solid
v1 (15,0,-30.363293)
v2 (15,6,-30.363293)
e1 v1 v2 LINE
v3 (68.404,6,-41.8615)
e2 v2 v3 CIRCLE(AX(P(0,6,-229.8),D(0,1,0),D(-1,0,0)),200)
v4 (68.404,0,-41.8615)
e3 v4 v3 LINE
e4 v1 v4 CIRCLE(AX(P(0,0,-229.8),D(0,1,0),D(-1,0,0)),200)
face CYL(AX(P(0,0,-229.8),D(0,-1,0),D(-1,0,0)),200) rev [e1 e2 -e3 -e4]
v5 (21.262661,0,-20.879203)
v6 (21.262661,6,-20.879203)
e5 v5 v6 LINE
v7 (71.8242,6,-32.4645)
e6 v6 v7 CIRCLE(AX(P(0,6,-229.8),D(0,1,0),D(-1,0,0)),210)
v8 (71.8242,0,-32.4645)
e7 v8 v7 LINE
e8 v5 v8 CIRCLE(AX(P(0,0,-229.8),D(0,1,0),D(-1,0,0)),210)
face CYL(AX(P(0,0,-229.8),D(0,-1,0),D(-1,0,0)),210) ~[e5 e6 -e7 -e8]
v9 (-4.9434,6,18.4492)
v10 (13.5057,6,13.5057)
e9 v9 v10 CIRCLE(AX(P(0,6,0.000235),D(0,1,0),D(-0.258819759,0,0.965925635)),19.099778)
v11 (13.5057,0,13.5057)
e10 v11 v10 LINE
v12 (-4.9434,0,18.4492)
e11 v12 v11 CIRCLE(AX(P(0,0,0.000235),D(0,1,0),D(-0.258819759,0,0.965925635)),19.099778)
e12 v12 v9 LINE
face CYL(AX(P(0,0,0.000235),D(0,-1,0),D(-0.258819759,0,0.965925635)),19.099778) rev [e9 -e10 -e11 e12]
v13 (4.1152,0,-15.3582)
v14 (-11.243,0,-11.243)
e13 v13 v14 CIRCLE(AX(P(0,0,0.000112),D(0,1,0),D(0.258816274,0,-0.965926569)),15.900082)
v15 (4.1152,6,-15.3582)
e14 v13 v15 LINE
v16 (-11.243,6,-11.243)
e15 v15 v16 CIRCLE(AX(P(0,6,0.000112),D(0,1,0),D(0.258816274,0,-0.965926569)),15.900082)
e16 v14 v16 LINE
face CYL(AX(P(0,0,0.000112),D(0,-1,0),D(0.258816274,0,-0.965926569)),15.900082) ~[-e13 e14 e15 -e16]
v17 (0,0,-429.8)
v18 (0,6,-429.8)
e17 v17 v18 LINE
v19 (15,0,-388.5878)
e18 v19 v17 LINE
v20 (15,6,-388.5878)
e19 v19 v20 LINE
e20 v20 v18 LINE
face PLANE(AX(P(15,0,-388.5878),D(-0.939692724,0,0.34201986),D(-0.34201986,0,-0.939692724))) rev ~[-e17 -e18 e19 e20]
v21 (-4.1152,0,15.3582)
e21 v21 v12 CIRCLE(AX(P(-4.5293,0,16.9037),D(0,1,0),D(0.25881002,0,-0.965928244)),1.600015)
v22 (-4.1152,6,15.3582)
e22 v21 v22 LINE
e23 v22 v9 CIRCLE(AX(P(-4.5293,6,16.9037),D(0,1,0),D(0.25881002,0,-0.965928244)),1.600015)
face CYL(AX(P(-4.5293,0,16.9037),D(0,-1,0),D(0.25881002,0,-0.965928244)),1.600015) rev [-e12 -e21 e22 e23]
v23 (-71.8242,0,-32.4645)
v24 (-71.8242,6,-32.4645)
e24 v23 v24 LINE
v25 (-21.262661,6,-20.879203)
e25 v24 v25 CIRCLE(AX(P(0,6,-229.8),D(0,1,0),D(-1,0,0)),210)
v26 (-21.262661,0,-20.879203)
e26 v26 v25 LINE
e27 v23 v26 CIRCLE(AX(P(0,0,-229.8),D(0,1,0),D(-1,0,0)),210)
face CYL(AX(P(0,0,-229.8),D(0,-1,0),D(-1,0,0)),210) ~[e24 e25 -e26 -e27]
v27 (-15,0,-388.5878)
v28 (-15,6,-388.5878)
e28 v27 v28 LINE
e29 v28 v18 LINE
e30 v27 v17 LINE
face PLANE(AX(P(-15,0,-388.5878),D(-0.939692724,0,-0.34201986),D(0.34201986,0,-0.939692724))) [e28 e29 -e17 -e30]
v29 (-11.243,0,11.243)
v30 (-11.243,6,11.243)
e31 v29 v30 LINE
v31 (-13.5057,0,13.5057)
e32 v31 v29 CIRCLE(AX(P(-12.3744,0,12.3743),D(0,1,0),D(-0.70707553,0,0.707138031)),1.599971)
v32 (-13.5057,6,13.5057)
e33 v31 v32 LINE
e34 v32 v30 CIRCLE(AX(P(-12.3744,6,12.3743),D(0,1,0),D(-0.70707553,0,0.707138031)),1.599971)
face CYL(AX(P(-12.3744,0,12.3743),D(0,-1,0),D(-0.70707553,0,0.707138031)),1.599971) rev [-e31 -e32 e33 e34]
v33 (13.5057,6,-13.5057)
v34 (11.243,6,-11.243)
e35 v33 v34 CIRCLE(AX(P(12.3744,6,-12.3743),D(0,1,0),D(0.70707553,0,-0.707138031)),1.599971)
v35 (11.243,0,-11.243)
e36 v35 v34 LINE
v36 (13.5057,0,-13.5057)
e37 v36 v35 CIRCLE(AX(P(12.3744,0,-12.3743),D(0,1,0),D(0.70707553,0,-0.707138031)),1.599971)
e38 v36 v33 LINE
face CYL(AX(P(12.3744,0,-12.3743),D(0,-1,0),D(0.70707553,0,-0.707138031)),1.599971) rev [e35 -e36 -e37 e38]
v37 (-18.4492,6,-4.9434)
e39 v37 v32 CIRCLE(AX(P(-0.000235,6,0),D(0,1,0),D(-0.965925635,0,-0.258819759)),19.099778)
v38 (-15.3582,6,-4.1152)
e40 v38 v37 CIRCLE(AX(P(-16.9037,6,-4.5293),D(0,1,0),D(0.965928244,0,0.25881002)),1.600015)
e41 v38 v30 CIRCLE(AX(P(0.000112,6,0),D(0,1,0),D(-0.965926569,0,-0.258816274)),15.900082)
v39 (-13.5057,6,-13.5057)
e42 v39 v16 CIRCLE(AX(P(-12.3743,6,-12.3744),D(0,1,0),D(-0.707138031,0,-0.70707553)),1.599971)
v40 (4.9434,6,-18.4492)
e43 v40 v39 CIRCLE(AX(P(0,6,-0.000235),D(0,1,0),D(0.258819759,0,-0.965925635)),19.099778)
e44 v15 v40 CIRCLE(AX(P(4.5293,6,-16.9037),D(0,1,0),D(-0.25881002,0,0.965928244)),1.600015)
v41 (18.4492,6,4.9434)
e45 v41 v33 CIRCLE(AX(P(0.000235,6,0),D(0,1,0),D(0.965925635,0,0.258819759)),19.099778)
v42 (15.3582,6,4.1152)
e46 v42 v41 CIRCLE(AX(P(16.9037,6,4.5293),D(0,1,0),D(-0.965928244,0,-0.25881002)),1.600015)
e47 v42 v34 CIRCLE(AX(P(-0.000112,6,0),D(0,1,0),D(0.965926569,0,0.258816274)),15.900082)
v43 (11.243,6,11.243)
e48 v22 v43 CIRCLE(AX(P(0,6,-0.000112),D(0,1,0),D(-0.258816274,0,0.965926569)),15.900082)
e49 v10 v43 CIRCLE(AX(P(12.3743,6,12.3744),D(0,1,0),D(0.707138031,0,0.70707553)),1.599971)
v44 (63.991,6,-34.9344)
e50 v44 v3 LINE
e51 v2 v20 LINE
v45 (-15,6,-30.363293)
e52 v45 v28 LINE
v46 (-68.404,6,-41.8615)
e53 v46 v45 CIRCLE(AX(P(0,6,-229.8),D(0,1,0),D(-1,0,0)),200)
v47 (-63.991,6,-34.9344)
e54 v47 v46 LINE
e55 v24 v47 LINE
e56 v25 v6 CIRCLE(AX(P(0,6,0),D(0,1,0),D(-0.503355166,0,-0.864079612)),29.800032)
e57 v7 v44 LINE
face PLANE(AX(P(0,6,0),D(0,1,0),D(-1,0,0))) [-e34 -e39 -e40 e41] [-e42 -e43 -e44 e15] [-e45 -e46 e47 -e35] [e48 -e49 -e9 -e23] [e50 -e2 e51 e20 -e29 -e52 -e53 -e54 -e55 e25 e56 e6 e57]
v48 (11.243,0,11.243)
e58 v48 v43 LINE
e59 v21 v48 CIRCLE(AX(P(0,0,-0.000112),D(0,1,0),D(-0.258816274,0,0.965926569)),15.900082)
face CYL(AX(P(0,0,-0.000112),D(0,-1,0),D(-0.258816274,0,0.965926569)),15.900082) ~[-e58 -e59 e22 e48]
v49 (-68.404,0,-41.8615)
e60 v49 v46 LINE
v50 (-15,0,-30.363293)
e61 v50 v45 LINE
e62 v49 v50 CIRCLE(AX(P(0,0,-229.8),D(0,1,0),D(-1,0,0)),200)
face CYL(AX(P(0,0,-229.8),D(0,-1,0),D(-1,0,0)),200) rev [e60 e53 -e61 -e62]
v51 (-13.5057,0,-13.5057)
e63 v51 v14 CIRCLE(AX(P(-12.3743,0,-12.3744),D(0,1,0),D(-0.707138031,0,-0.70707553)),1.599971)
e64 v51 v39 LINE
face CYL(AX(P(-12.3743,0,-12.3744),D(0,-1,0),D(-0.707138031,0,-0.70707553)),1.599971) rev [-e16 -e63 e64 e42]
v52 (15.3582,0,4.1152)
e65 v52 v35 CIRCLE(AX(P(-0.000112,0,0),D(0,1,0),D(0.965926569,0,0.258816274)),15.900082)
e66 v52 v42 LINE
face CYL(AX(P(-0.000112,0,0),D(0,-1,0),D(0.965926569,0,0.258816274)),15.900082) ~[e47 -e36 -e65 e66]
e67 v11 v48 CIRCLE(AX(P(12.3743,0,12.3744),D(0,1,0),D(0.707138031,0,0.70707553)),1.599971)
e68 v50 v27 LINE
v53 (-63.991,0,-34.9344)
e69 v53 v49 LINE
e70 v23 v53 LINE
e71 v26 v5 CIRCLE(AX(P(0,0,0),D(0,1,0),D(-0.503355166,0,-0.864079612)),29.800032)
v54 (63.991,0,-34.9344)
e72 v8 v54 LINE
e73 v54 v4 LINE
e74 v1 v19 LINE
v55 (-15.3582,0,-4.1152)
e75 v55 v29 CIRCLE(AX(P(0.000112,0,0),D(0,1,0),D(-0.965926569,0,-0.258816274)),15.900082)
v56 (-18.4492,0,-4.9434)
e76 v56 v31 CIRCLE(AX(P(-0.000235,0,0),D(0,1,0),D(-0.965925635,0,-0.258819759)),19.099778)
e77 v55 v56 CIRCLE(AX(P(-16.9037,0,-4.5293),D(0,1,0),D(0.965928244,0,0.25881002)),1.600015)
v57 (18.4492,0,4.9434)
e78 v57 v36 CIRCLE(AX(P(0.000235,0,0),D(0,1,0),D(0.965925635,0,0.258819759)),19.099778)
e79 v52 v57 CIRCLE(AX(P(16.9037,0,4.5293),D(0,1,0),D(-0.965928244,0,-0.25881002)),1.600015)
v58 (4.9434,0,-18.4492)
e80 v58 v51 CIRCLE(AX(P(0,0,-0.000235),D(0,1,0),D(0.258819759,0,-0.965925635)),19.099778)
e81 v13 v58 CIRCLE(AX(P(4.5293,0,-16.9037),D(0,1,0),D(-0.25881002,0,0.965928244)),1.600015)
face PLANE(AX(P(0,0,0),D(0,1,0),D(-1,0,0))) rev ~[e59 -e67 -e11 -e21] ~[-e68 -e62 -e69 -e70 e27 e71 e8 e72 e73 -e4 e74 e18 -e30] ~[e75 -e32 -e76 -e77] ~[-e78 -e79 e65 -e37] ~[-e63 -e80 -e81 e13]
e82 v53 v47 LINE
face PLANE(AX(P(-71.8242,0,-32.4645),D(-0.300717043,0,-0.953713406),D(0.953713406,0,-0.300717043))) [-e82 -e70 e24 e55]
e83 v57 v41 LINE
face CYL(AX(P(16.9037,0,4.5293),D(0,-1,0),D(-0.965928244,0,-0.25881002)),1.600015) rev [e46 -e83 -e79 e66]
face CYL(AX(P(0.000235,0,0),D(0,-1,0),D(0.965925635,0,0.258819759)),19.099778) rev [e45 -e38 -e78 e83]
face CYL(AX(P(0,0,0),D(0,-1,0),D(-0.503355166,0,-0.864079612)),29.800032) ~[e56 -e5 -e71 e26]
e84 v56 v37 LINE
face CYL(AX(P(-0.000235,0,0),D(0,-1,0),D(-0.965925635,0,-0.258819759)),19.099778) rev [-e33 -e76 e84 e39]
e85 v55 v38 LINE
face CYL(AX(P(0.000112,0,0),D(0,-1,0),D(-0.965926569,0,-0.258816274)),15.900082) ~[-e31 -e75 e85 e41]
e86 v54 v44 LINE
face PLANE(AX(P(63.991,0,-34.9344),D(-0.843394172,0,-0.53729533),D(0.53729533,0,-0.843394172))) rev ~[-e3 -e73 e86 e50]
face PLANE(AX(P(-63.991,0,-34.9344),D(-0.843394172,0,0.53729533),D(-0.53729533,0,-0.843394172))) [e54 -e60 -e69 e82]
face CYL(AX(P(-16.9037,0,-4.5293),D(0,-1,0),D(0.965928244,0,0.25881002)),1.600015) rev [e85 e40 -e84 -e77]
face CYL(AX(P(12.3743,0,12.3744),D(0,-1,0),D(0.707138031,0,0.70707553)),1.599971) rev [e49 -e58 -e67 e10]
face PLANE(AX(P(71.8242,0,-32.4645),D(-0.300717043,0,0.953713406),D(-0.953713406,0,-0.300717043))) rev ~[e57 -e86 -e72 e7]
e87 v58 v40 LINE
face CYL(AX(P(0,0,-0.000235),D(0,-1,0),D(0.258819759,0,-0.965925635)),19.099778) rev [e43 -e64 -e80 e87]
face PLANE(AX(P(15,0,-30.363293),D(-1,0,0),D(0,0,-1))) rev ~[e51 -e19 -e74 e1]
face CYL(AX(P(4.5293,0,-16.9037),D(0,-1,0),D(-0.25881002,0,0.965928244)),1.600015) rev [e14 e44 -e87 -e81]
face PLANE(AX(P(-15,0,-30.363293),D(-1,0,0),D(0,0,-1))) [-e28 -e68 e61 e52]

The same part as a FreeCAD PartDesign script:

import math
import FreeCAD as App
import Part
import Sketcher
Q = App.Units.Quantity

doc = App.newDocument("Part")
body = doc.addObject("PartDesign::Body", "Body")

sketch1 = body.newObject("Sketcher::SketchObject", "Sketch")
sketch1.AttachmentSupport = (doc.getObject("XZ_Plane"), [""])
sketch1.MapMode = "FlatFace"
sketch1.addGeometry([
    Part.ArcOfCircle(Part.Circle(App.Vector(0, -229.8, 0), App.Vector(0, 0, 1), 200), math.radians(94.301222), math.radians(109.999995)),
    Part.LineSegment(App.Vector(-68.404, -41.8615, 0), App.Vector(-63.991, -34.9344, 0)),
    Part.LineSegment(App.Vector(-63.991, -34.9344, 0), App.Vector(-71.8242, -32.4645, 0)),
    Part.ArcOfCircle(Part.Circle(App.Vector(0, -229.8, 0), App.Vector(0, 0, 1), 210), math.radians(95.8112), math.radians(109.999988)),
    Part.ArcOfCircle(Part.Circle(App.Vector(0, 0, 0), App.Vector(0, 0, 1), 29.800032), math.radians(-44.478668), math.radians(224.478668)),
    Part.ArcOfCircle(Part.Circle(App.Vector(0, -229.8, 0), App.Vector(0, 0, 1), 210), math.radians(70.000012), math.radians(84.1888)),
    Part.LineSegment(App.Vector(71.8242, -32.4645, 0), App.Vector(63.991, -34.9344, 0)),
    Part.LineSegment(App.Vector(63.991, -34.9344, 0), App.Vector(68.404, -41.8615, 0)),
    Part.ArcOfCircle(Part.Circle(App.Vector(0, -229.8, 0), App.Vector(0, 0, 1), 200), math.radians(70.000005), math.radians(85.698778)),
    Part.LineSegment(App.Vector(15, -30.363293, 0), App.Vector(15, -388.5878, 0)),
    Part.LineSegment(App.Vector(15, -388.5878, 0), App.Vector(0, -429.8, 0)),
    Part.LineSegment(App.Vector(0, -429.8, 0), App.Vector(-15, -388.5878, 0)),
    Part.LineSegment(App.Vector(-15, -388.5878, 0), App.Vector(-15, -30.363293, 0)),
    Part.ArcOfCircle(Part.Circle(App.Vector(-16.9037, -4.5293, 0), App.Vector(0, 0, 1), 1.600015), math.radians(-165.000535), math.radians(14.999465)),
    Part.ArcOfCircle(Part.Circle(App.Vector(0, 0, 0), App.Vector(0, 0, 1), 15.899974), math.radians(135), math.radians(194.99994)),
    Part.ArcOfCircle(Part.Circle(App.Vector(-12.3744, 12.3744, 0), App.Vector(0, 0, 1), 1.5999), math.radians(-45), math.radians(135)),
    Part.ArcOfCircle(Part.Circle(App.Vector(0, 0, 0), App.Vector(0, 0, 1), 19.100005), math.radians(135), math.radians(194.99986)),
    Part.ArcOfCircle(Part.Circle(App.Vector(0, 0, 0), App.Vector(0, 0, 1), 19.100005), math.radians(-45), math.radians(14.99986)),
    Part.ArcOfCircle(Part.Circle(App.Vector(16.9037, 4.5293, 0), App.Vector(0, 0, 1), 1.600015), math.radians(14.999465), math.radians(194.999465)),
    Part.ArcOfCircle(Part.Circle(App.Vector(0, 0, 0), App.Vector(0, 0, 1), 15.899974), math.radians(-45), math.radians(14.99994)),
    Part.ArcOfCircle(Part.Circle(App.Vector(12.3744, -12.3744, 0), App.Vector(0, 0, 1), 1.5999), math.radians(135), math.radians(315)),
    Part.ArcOfCircle(Part.Circle(App.Vector(0, 0, 0), App.Vector(0, 0, 1), 19.100005), math.radians(45), math.radians(104.99986)),
    Part.ArcOfCircle(Part.Circle(App.Vector(-4.5293, 16.9037, 0), App.Vector(0, 0, 1), 1.600015), math.radians(104.999465), math.radians(284.999465)),
    Part.ArcOfCircle(Part.Circle(App.Vector(0, 0, 0), App.Vector(0, 0, 1), 15.899974), math.radians(45), math.radians(104.99994)),
    Part.ArcOfCircle(Part.Circle(App.Vector(12.3744, 12.3744, 0), App.Vector(0, 0, 1), 1.5999), math.radians(-135), math.radians(45)),
    Part.ArcOfCircle(Part.Circle(App.Vector(0, 0, 0), App.Vector(0, 0, 1), 19.100005), math.radians(-135), math.radians(-75.00014)),
    Part.ArcOfCircle(Part.Circle(App.Vector(4.5293, -16.9037, 0), App.Vector(0, 0, 1), 1.600015), math.radians(-75.000535), math.radians(104.999465)),
    Part.ArcOfCircle(Part.Circle(App.Vector(0, 0, 0), App.Vector(0, 0, 1), 15.899974), math.radians(-135), math.radians(-75.00006)),
    Part.ArcOfCircle(Part.Circle(App.Vector(-12.3744, -12.3744, 0), App.Vector(0, 0, 1), 1.5999), math.radians(45), math.radians(225)),
], False)
sketch1.addConstraint([
    Sketcher.Constraint("Coincident", 0, 2, 1, 1),
    Sketcher.Constraint("Coincident", 1, 2, 2, 1),
    Sketcher.Constraint("Coincident", 2, 2, 3, 2),
    Sketcher.Constraint("Coincident", 3, 1, 4, 2),
    Sketcher.Constraint("Coincident", 4, 1, 5, 2),
    Sketcher.Constraint("Coincident", 5, 1, 6, 1),
    Sketcher.Constraint("Coincident", 6, 2, 7, 1),
    Sketcher.Constraint("Coincident", 7, 2, 8, 1),
    Sketcher.Constraint("Coincident", 8, 2, 9, 1),
    Sketcher.Constraint("Coincident", 9, 2, 10, 1),
    Sketcher.Constraint("Coincident", 10, 2, 11, 1),
    Sketcher.Constraint("Coincident", 11, 2, 12, 1),
    Sketcher.Constraint("Coincident", 12, 2, 0, 1),
    Sketcher.Constraint("Tangent", 13, 2, 14, 2),
    Sketcher.Constraint("Tangent", 14, 1, 15, 1),
    Sketcher.Constraint("Tangent", 15, 2, 16, 1),
    Sketcher.Constraint("Tangent", 16, 2, 13, 1),
    Sketcher.Constraint("Tangent", 17, 2, 18, 1),
    Sketcher.Constraint("Tangent", 18, 2, 19, 2),
    Sketcher.Constraint("Tangent", 19, 1, 20, 1),
    Sketcher.Constraint("Tangent", 20, 2, 17, 1),
    Sketcher.Constraint("Tangent", 21, 2, 22, 1),
    Sketcher.Constraint("Tangent", 22, 2, 23, 2),
    Sketcher.Constraint("Tangent", 23, 1, 24, 1),
    Sketcher.Constraint("Tangent", 24, 2, 21, 1),
    Sketcher.Constraint("Tangent", 25, 2, 26, 1),
    Sketcher.Constraint("Tangent", 26, 2, 27, 2),
    Sketcher.Constraint("Tangent", 27, 1, 28, 1),
    Sketcher.Constraint("Tangent", 28, 2, 25, 1),
    Sketcher.Constraint("Vertical", 9),
    Sketcher.Constraint("Vertical", 12),
    Sketcher.Constraint("Coincident", 4, 3, -1, 1),
    Sketcher.Constraint("Coincident", 14, 3, -1, 1),
    Sketcher.Constraint("Coincident", 16, 3, -1, 1),
    Sketcher.Constraint("Coincident", 17, 3, -1, 1),
    Sketcher.Constraint("Coincident", 19, 3, -1, 1),
    Sketcher.Constraint("Coincident", 21, 3, -1, 1),
    Sketcher.Constraint("Coincident", 23, 3, -1, 1),
    Sketcher.Constraint("Coincident", 25, 3, -1, 1),
    Sketcher.Constraint("Coincident", 27, 3, -1, 1),
    Sketcher.Constraint("Coincident", 3, 3, 0, 3),
    Sketcher.Constraint("Coincident", 5, 3, 0, 3),
    Sketcher.Constraint("Coincident", 8, 3, 0, 3),
    Sketcher.Constraint("Equal", 3, 5),
    Sketcher.Constraint("Equal", 0, 8),
    Sketcher.Constraint("Equal", 16, 17),
    Sketcher.Constraint("Equal", 15, 18),
    Sketcher.Constraint("Equal", 17, 21),
    Sketcher.Constraint("Equal", 20, 22),
    Sketcher.Constraint("Equal", 21, 25),
    Sketcher.Constraint("Equal", 24, 26),
    Sketcher.Constraint("Symmetric", 2, 2, 5, 1, -2),
    Sketcher.Constraint("Symmetric", 1, 2, 6, 2, -2),
    Sketcher.Constraint("Symmetric", 9, 2, 11, 2, -2),
    Sketcher.Constraint("PointOnObject", 10, 2, -2),
    Sketcher.Constraint("Horizontal", 15, 3, 24, 3),
    Sketcher.Constraint("Horizontal", 20, 3, 28, 3),
    Sketcher.Constraint("Horizontal", 0, 2, 7, 2),
    Sketcher.Constraint("Vertical", 20, 3, 24, 3),
    Sketcher.Constraint("Equal", 1, 2),
    Sketcher.Constraint("Radius", 0, 200.0),
    Sketcher.Constraint("Radius", 4, 29.8),
    Sketcher.Constraint("Radius", 13, 1.6),
    Sketcher.Constraint("DistanceX", -1, 1, 8, 2, 15.0),
    Sketcher.Constraint("Radius", 3, 210.0),
    Sketcher.Constraint("DistanceY", 10, 2, 0, 3, 200.0),
    Sketcher.Constraint("Radius", 14, 15.9),
    Sketcher.Constraint("Angle", 10, Q("-110 deg")),
    Sketcher.Constraint("Angle", 1, Q("57.5003 deg")),
    Sketcher.Constraint("Angle", 2, Q("162.4993 deg")),
    Sketcher.Constraint("DistanceY", 0, 3, -1, 1, 229.8),
    Sketcher.Constraint("DistanceY", 1, 2, 28, 3, 22.56),
    Sketcher.Constraint("DistanceY", 3, 1, 13, 3, 16.35),
    Sketcher.Constraint("DistanceX", 1, 2, -1, 1, 63.991),
    Sketcher.Constraint("DistanceX", 15, 3, 18, 3, 29.278),
    Sketcher.Constraint("DistanceX", 15, 3, 22, 3, 7.845),
    Sketcher.Constraint("DistanceX", 26, 3, 20, 3, 7.845),
])
pad1 = body.newObject("PartDesign::Pad", "Pad")
pad1.Profile = sketch1
pad1.Length = 6
pad1.Reversed = True

doc.recompute()
